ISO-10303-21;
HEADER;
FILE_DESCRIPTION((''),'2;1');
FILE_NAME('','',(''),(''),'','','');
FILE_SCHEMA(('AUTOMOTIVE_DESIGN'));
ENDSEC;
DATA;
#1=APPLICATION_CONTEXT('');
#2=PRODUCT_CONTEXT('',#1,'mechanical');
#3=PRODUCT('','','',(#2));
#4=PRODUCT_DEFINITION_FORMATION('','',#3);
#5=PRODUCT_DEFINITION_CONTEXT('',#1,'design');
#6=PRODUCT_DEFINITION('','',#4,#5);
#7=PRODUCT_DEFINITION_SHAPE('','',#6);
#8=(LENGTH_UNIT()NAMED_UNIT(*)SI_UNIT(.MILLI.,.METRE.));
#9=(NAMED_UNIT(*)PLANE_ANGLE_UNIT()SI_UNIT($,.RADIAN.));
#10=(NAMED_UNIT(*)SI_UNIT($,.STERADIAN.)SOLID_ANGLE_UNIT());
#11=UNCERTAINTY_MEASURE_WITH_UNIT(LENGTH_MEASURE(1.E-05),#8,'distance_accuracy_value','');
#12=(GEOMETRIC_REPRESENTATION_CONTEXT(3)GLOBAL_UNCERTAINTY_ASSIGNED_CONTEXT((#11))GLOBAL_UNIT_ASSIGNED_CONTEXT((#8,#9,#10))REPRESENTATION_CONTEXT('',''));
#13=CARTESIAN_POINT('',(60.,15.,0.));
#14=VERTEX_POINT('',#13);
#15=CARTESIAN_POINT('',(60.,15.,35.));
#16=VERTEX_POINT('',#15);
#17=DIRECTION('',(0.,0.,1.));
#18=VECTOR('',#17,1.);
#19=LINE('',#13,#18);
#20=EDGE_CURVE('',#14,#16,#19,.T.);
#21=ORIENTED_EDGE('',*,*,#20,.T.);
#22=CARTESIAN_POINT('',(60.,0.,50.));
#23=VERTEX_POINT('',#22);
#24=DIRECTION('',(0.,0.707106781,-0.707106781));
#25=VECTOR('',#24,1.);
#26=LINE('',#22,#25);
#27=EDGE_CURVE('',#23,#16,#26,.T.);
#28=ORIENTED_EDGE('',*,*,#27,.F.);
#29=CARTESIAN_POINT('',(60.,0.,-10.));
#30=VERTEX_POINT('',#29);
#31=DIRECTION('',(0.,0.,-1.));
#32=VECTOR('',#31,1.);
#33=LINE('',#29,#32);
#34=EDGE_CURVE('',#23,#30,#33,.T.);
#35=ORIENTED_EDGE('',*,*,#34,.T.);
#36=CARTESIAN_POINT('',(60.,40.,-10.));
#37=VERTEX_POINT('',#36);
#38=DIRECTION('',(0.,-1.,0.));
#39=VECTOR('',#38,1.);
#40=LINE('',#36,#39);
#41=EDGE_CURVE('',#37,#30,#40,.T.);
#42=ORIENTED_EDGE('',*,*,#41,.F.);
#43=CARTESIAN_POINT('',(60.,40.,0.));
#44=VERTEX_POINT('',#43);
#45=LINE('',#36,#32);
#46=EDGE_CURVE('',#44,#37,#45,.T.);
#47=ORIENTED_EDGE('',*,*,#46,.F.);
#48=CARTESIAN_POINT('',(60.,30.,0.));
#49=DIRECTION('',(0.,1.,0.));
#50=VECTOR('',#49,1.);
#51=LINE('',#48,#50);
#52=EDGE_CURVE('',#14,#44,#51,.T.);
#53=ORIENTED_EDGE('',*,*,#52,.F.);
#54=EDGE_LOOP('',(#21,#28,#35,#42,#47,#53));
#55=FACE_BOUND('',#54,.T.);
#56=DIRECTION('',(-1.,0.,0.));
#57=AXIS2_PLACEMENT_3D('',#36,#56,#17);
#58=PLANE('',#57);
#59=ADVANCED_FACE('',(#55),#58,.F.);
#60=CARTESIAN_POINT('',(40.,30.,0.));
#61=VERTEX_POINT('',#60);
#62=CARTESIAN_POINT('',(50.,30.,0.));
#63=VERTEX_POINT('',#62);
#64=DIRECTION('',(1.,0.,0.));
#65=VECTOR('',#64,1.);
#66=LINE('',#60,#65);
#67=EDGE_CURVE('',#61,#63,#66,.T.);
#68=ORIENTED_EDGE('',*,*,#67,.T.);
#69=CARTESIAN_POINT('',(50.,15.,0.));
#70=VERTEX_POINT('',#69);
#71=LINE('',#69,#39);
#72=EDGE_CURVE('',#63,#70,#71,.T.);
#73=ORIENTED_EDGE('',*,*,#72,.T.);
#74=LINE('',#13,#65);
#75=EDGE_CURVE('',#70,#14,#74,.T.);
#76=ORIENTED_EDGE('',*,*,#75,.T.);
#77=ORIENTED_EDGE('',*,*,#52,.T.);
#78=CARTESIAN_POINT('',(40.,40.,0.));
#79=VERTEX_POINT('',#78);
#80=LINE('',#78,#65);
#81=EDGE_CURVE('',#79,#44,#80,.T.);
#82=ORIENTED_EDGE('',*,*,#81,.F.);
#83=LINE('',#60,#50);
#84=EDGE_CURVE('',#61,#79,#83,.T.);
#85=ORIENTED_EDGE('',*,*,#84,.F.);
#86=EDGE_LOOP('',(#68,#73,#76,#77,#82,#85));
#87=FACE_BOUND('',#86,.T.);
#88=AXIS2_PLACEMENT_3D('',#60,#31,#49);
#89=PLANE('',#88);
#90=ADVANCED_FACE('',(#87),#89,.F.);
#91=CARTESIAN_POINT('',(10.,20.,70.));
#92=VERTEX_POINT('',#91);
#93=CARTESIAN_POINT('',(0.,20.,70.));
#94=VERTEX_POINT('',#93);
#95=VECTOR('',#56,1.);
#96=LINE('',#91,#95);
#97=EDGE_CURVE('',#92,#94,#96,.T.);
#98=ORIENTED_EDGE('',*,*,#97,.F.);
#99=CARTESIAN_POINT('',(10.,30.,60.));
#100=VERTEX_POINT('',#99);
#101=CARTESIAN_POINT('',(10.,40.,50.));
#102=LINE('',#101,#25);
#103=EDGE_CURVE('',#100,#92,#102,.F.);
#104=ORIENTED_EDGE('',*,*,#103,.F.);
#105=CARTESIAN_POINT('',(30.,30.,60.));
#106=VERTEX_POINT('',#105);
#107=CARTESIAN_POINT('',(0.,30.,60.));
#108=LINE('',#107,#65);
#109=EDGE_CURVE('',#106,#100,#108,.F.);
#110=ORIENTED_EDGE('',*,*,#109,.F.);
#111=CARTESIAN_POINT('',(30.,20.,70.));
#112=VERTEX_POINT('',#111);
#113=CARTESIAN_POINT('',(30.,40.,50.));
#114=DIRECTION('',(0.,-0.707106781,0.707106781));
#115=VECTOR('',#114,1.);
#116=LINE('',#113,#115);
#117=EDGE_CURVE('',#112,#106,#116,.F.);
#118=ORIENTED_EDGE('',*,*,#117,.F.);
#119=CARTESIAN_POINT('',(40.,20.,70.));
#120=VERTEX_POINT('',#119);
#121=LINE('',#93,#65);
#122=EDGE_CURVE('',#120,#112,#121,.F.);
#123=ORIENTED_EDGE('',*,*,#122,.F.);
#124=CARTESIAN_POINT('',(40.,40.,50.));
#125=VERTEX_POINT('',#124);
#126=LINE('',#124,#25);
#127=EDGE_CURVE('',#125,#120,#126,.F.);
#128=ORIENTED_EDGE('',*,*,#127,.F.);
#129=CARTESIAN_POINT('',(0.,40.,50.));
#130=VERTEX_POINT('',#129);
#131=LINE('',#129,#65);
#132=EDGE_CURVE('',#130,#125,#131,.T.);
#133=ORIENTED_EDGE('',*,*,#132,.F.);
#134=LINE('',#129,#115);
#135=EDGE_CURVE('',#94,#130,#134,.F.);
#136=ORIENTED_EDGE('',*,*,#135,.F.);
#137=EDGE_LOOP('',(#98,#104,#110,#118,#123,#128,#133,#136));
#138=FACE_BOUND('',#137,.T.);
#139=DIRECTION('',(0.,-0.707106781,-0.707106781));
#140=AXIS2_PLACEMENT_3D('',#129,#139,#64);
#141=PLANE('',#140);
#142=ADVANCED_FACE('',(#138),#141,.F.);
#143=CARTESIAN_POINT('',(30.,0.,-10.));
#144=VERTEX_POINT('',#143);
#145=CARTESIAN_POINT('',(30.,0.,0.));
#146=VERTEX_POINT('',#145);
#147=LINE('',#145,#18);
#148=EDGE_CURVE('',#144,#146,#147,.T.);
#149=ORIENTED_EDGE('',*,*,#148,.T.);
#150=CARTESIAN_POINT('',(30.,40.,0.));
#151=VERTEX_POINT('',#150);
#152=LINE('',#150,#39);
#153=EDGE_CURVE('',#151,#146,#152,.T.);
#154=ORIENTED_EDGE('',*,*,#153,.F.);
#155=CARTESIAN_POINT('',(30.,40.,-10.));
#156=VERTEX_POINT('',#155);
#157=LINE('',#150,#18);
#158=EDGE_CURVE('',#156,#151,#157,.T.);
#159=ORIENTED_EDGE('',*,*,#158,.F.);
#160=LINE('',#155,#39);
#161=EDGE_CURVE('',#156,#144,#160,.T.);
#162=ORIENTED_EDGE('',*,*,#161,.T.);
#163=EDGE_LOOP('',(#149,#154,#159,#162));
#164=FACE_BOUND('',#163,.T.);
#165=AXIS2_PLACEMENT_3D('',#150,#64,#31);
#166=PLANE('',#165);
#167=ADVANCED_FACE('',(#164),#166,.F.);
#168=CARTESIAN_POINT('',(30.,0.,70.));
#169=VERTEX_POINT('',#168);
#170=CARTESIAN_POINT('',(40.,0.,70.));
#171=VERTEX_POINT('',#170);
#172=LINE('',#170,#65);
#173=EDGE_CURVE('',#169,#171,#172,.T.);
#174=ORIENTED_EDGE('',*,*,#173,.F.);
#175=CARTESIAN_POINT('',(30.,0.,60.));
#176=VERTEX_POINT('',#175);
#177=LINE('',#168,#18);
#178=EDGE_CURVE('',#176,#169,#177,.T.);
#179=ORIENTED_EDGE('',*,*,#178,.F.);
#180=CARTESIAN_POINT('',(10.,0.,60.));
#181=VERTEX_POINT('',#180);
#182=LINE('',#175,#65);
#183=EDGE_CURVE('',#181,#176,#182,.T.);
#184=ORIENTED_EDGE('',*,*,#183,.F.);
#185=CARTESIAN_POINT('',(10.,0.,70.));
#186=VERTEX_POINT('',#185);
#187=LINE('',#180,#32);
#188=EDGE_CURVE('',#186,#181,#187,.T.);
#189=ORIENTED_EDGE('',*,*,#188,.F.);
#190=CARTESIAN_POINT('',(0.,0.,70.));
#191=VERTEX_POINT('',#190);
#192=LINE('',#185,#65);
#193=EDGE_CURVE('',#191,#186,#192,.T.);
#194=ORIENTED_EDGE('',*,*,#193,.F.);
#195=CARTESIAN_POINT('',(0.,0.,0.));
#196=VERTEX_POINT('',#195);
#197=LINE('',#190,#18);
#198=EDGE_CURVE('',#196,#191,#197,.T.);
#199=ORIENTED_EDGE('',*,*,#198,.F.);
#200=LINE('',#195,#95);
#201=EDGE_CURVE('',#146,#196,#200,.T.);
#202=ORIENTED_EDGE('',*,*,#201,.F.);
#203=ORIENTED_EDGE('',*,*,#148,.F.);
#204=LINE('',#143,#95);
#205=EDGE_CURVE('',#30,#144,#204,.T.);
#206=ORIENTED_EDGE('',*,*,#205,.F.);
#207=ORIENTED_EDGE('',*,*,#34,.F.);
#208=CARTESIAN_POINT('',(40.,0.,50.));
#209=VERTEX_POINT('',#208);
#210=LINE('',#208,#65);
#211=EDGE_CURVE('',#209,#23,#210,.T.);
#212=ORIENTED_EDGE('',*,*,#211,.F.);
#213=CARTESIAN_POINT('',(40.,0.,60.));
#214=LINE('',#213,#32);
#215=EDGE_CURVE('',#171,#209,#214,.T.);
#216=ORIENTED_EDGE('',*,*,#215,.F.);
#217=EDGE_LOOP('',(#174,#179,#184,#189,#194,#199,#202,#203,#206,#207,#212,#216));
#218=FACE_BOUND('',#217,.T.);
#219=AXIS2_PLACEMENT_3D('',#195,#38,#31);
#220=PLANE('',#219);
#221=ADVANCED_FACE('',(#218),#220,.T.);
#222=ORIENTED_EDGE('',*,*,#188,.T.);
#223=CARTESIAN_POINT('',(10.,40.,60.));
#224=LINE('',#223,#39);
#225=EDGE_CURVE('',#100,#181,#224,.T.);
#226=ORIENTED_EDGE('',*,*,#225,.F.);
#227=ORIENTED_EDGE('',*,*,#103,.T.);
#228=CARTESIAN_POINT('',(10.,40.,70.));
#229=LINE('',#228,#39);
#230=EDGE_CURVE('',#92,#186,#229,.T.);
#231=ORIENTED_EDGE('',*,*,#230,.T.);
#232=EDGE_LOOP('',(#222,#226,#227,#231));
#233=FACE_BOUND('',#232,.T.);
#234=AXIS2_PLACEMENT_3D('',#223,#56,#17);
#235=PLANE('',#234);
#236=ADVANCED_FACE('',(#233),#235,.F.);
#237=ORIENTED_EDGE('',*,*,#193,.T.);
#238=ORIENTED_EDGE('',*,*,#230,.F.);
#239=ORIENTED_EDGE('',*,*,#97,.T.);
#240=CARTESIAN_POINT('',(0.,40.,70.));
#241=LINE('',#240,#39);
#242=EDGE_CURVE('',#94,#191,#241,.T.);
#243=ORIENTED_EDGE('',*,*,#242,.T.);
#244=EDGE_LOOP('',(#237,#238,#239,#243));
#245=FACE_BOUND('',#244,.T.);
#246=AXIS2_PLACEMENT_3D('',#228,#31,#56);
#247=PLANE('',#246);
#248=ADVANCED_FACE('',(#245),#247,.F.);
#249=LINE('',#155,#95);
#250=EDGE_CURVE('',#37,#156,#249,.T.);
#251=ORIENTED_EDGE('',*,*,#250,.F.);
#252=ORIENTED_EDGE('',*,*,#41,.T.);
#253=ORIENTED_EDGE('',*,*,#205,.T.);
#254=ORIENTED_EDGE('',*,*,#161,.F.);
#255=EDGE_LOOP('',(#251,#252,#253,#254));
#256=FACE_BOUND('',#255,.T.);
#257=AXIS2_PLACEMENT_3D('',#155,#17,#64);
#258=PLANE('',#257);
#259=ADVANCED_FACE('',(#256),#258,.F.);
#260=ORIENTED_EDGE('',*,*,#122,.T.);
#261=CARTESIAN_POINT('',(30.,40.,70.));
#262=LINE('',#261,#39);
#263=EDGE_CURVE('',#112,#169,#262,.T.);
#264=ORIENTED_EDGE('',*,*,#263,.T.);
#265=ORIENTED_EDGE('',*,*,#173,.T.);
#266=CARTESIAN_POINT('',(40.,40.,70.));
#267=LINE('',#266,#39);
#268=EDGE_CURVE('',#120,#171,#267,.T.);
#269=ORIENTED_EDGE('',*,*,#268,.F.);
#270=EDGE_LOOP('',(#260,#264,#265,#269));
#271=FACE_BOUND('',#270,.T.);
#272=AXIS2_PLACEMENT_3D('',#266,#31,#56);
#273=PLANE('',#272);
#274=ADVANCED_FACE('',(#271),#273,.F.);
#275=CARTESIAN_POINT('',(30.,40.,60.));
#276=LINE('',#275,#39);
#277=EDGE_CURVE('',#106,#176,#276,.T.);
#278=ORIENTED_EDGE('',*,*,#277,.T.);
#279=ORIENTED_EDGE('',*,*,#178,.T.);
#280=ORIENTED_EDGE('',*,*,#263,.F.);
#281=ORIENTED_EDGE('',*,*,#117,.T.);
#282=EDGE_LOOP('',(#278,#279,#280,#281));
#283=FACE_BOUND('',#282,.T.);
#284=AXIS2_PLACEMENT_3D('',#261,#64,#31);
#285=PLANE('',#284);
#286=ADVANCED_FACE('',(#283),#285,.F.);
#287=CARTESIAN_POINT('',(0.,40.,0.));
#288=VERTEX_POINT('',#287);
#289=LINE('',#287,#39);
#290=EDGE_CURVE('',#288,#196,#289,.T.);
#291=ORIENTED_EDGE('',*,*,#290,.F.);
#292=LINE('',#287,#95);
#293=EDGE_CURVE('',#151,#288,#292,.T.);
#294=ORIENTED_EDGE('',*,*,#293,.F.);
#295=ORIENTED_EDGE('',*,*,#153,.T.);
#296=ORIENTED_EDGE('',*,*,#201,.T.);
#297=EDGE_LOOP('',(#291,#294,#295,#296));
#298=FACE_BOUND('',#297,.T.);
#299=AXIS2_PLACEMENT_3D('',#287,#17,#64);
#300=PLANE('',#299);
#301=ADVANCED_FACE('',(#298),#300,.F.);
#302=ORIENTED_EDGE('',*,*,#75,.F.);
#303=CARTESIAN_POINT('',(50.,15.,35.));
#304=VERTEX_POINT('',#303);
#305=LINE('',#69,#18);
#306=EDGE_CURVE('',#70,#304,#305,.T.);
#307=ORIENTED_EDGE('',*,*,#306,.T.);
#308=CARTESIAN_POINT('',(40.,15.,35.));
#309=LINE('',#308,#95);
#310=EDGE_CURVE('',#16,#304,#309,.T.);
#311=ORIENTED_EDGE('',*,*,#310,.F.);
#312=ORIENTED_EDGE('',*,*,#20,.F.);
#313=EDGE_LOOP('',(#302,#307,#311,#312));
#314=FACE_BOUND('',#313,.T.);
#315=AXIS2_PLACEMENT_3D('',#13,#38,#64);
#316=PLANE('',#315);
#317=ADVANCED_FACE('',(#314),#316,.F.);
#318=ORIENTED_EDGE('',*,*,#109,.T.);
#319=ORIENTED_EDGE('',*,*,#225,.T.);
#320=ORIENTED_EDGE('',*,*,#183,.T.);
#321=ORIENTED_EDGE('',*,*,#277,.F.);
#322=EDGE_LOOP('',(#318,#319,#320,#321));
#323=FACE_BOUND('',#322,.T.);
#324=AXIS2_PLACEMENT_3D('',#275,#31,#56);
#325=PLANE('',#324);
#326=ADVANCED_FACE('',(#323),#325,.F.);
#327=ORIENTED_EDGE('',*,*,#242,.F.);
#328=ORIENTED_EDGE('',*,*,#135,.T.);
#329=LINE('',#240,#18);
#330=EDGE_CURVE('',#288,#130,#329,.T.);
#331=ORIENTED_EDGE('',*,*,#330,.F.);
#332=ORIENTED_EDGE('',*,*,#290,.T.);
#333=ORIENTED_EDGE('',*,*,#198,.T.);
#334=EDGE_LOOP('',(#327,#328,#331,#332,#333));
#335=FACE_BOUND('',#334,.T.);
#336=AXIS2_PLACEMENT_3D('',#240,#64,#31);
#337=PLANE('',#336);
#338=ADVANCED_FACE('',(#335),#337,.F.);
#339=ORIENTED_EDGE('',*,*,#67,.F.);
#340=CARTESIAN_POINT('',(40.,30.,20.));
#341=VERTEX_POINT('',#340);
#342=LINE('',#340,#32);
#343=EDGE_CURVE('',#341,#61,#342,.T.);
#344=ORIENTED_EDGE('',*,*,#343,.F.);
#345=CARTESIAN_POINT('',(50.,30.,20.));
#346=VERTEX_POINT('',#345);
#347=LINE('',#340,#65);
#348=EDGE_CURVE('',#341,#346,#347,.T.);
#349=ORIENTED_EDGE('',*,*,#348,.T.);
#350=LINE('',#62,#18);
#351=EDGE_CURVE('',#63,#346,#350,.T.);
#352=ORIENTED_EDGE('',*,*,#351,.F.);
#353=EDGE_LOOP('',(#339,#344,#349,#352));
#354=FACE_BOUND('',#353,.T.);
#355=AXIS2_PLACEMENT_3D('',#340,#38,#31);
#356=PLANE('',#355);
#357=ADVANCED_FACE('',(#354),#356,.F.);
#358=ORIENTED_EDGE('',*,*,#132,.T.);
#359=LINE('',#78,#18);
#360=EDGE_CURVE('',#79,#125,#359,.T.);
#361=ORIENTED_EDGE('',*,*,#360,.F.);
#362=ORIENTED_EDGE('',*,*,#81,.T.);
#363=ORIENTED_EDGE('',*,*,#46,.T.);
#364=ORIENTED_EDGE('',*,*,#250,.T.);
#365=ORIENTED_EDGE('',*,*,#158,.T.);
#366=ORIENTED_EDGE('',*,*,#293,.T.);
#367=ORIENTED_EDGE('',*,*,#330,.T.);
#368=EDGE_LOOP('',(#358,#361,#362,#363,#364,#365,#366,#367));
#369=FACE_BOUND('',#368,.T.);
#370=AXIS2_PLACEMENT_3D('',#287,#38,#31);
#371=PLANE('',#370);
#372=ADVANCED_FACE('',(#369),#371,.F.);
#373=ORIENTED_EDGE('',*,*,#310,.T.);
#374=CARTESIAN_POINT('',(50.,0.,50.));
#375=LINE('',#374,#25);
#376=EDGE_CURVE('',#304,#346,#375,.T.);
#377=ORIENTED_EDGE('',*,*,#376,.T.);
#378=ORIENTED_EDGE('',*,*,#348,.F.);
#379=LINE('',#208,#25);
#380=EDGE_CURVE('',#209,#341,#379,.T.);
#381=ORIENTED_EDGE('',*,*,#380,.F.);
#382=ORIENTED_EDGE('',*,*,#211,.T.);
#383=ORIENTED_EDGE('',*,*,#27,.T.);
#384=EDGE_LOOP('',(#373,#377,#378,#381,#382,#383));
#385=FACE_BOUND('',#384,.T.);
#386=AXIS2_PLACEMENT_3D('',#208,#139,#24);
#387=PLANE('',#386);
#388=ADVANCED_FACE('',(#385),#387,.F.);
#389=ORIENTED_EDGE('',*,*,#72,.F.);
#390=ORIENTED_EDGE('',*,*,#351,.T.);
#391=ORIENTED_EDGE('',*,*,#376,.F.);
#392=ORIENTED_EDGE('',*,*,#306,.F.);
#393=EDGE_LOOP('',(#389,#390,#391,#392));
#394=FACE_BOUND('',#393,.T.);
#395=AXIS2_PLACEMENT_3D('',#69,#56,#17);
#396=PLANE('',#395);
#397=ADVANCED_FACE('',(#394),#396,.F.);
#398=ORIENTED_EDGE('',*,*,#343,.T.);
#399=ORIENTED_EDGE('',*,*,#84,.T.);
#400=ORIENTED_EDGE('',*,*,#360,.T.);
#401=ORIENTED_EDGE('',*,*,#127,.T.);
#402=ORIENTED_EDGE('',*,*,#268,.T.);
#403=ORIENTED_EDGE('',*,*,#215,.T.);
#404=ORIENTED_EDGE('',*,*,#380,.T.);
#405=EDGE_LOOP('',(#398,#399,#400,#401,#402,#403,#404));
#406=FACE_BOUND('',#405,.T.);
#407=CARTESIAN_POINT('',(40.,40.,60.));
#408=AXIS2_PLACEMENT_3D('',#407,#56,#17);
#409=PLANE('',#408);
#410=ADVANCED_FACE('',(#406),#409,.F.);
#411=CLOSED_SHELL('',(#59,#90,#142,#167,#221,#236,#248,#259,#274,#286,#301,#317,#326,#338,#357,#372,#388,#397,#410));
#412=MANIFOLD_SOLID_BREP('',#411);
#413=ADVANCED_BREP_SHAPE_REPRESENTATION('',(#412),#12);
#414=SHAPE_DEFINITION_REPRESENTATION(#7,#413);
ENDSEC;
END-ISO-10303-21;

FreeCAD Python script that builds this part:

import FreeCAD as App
import Part
import Sketcher


def edges_at(feature, points):
    """Names of the edges that pass closest to the given points."""
    edges = feature.Shape.Edges
    near = lambda p: min(range(len(edges)), key=lambda i: edges[i].distToShape(Part.Vertex(*p))[0])
    return sorted({f"Edge{near(p) + 1}" for p in points})

doc = App.newDocument("Part")
params = doc.addObject("Spreadsheet::Sheet", "Params")
for row, (alias, value) in enumerate([
    ("sketch1_width", "30 mm"),
    ("sketch1_width2", "10 mm"),
    ("sketch1_height", "70 mm"),
    ("pad1_length", "40 mm"),
    ("chamfer_size", "20 mm"),
    ("sketch2_width", "10 mm"),
    ("sketch2_width2", "30 mm"),
    ("sketch2_height", "50 mm"),
    ("pocket1_length", "20 mm"),
    ("sketch3_width", "10 mm"),
    ("sketch3_height", "15 mm"),
    ("pocket2_length", "70 mm"),
], start=1):
    params.set(f"A{row}", alias)
    params.set(f"B{row}", "=" + value)
    params.setAlias(f"B{row}", alias)

body = doc.addObject("PartDesign::Body", "Body")

# Sketch on XZ plane
sketch1 = body.newObject("Sketcher::SketchObject", "Sketch")
sketch1.AttachmentSupport = (doc.getObject("XZ_Plane"), [""])
sketch1.MapMode = "FlatFace"
sketch1.addGeometry([
    Part.LineSegment(App.Vector(30, 0, 0), App.Vector(0, 0, 0)),  # 0
    Part.LineSegment(App.Vector(0, 0, 0), App.Vector(0, 70, 0)),  # 1
    Part.LineSegment(App.Vector(0, 70, 0), App.Vector(10, 70, 0)),  # 2
    Part.LineSegment(App.Vector(10, 70, 0), App.Vector(10, 60, 0)),  # 3
    Part.LineSegment(App.Vector(10, 60, 0), App.Vector(30, 60, 0)),  # 4
    Part.LineSegment(App.Vector(30, 60, 0), App.Vector(30, 70, 0)),  # 5
    Part.LineSegment(App.Vector(30, 70, 0), App.Vector(40, 70, 0)),  # 6
    Part.LineSegment(App.Vector(40, 70, 0), App.Vector(40, 60, 0)),  # 7
    Part.LineSegment(App.Vector(40, 60, 0), App.Vector(60, 60, 0)),  # 8
    Part.LineSegment(App.Vector(60, 60, 0), App.Vector(60, -10, 0)),  # 9
    Part.LineSegment(App.Vector(60, -10, 0), App.Vector(30, -10, 0)),  # 10
    Part.LineSegment(App.Vector(30, -10, 0), App.Vector(30, 0, 0)),  # 11
], False)
sketch1.addConstraint([
    Sketcher.Constraint("Coincident", 0, 2, 1, 1),
    Sketcher.Constraint("Coincident", 1, 2, 2, 1),
    Sketcher.Constraint("Coincident", 2, 2, 3, 1),
    Sketcher.Constraint("Coincident", 3, 2, 4, 1),
    Sketcher.Constraint("Coincident", 4, 2, 5, 1),
    Sketcher.Constraint("Coincident", 5, 2, 6, 1),
    Sketcher.Constraint("Coincident", 6, 2, 7, 1),
    Sketcher.Constraint("Coincident", 7, 2, 8, 1),
    Sketcher.Constraint("Coincident", 8, 2, 9, 1),
    Sketcher.Constraint("Coincident", 9, 2, 10, 1),
    Sketcher.Constraint("Coincident", 10, 2, 11, 1),
    Sketcher.Constraint("Coincident", 11, 2, 0, 1),
    Sketcher.Constraint("Horizontal", 0),
    Sketcher.Constraint("Vertical", 1),
    Sketcher.Constraint("Horizontal", 2),
    Sketcher.Constraint("Vertical", 3),
    Sketcher.Constraint("Horizontal", 4),
    Sketcher.Constraint("Vertical", 5),
    Sketcher.Constraint("Horizontal", 6),
    Sketcher.Constraint("Vertical", 7),
    Sketcher.Constraint("Horizontal", 8),
    Sketcher.Constraint("Vertical", 9),
    Sketcher.Constraint("Horizontal", 10),
    Sketcher.Constraint("Vertical", 11),
    Sketcher.Constraint("Coincident", 0, 2, -1, 1),
    Sketcher.Constraint("Horizontal", 2, 2, 5, 2),
    Sketcher.Constraint("Horizontal", 4, 2, 7, 2),
    Sketcher.Constraint("Vertical", 5, 2, 10, 2),
    Sketcher.Constraint("Equal", 2, 6),
    Sketcher.Constraint("Equal", 4, 8),
    Sketcher.Constraint("Equal", 6, 3),
    Sketcher.Constraint("Equal", 1, 9),
    Sketcher.Constraint("DistanceX", 0, 2, 0, 1, 30.0),
    Sketcher.Constraint("DistanceX", 2, 1, 2, 2, 10.0),
    Sketcher.Constraint("DistanceY", 1, 1, 1, 2, 70.0),
])
sketch1.setExpression("Constraints[32]", "Params.sketch1_width")
sketch1.setExpression("Constraints[33]", "Params.sketch1_width2")
sketch1.setExpression("Constraints[34]", "Params.sketch1_height")
pad1 = body.newObject("PartDesign::Pad", "Pad")
pad1.Profile = sketch1
pad1.setExpression("Length", "Params.pad1_length")
pad1.Reversed = True
doc.recompute()

chamfer = body.newObject("PartDesign::Chamfer", "Chamfer")
chamfer.Base = (pad1, edges_at(pad1, [(5, 40, 70)]))
chamfer.setExpression("Size", "Params.chamfer_size")

# Sketch on YZ plane
sketch2 = body.newObject("Sketcher::SketchObject", "Sketch001")
sketch2.AttachmentSupport = (doc.getObject("YZ_Plane"), [""])
sketch2.MapMode = "FlatFace"
sketch2.AttachmentOffset = App.Placement(App.Vector(0, 0, 60), App.Rotation())
sketch2.addGeometry([
    Part.LineSegment(App.Vector(30, 0, 0), App.Vector(40, 0, 0)),  # 0
    Part.LineSegment(App.Vector(40, 0, 0), App.Vector(40, 50, 0)),  # 1
    Part.LineSegment(App.Vector(40, 50, 0), App.Vector(30, 60, 0)),  # 2
    Part.LineSegment(App.Vector(30, 60, 0), App.Vector(0, 60, 0)),  # 3
    Part.LineSegment(App.Vector(0, 60, 0), App.Vector(0, 50, 0)),  # 4
    Part.LineSegment(App.Vector(0, 50, 0), App.Vector(30, 20, 0)),  # 5
    Part.LineSegment(App.Vector(30, 20, 0), App.Vector(30, 0, 0)),  # 6
], False)
sketch2.addConstraint([
    Sketcher.Constraint("Coincident", 0, 2, 1, 1),
    Sketcher.Constraint("Coincident", 1, 2, 2, 1),
    Sketcher.Constraint("Coincident", 2, 2, 3, 1),
    Sketcher.Constraint("Coincident", 3, 2, 4, 1),
    Sketcher.Constraint("Coincident", 4, 2, 5, 1),
    Sketcher.Constraint("Coincident", 5, 2, 6, 1),
    Sketcher.Constraint("Coincident", 6, 2, 0, 1),
    Sketcher.Constraint("Horizontal", 0),
    Sketcher.Constraint("Vertical", 1),
    Sketcher.Constraint("Horizontal", 3),
    Sketcher.Constraint("Vertical", 4),
    Sketcher.Constraint("Vertical", 6),
    Sketcher.Constraint("PointOnObject", 0, 2, -1),
    Sketcher.Constraint("PointOnObject", 3, 2, -2),
    Sketcher.Constraint("Parallel", 2, 5),
    Sketcher.Constraint("Horizontal", 1, 2, 4, 2),
    Sketcher.Constraint("Vertical", 2, 2, 5, 2),
    Sketcher.Constraint("Equal", 0, 4),
    Sketcher.Constraint("DistanceX", 0, 1, 0, 2, 10.0),
    Sketcher.Constraint("DistanceX", 3, 2, 3, 1, 30.0),
    Sketcher.Constraint("DistanceY", 1, 1, 1, 2, 50.0),
])
sketch2.setExpression("Constraints[18]", "Params.sketch2_width")
sketch2.setExpression("Constraints[19]", "Params.sketch2_width2")
sketch2.setExpression("Constraints[20]", "Params.sketch2_height")
pocket1 = body.newObject("PartDesign::Pocket", "Pocket")
pocket1.Profile = sketch2
pocket1.setExpression("Length", "Params.pocket1_length")

# Sketch on XY plane
sketch3 = body.newObject("Sketcher::SketchObject", "Sketch002")
sketch3.AttachmentSupport = (doc.getObject("XY_Plane"), [""])
sketch3.MapMode = "FlatFace"
sketch3.AttachmentOffset = App.Placement(App.Vector(0, 0, 70), App.Rotation())
sketch3.addGeometry([
    Part.LineSegment(App.Vector(50, 30, 0), App.Vector(50, 15, 0)),
    Part.LineSegment(App.Vector(50, 15, 0), App.Vector(60, 15, 0)),
    Part.LineSegment(App.Vector(60, 15, 0), App.Vector(60, 30, 0)),
    Part.LineSegment(App.Vector(60, 30, 0), App.Vector(50, 30, 0)),
], False)
sketch3.addConstraint([
    Sketcher.Constraint("Coincident", 0, 2, 1, 1),
    Sketcher.Constraint("Coincident", 1, 2, 2, 1),
    Sketcher.Constraint("Coincident", 2, 2, 3, 1),
    Sketcher.Constraint("Coincident", 3, 2, 0, 1),
    Sketcher.Constraint("Vertical", 0),
    Sketcher.Constraint("Horizontal", 1),
    Sketcher.Constraint("Vertical", 2),
    Sketcher.Constraint("Horizontal", 3),
    Sketcher.Constraint("DistanceX", 1, 1, 1, 2, 10.0),
    Sketcher.Constraint("DistanceY", 0, 2, 0, 1, 15.0),
    Sketcher.Constraint("DistanceX", -1, 1, 0, 2, 50.0),
    Sketcher.Constraint("DistanceY", -1, 1, 0, 2, 15.0),
])
sketch3.setExpression("Constraints[8]", "Params.sketch3_width")
sketch3.setExpression("Constraints[9]", "Params.sketch3_height")
pocket2 = body.newObject("PartDesign::Pocket", "Pocket001")
pocket2.Profile = sketch3
pocket2.setExpression("Length", "Params.pocket2_length")

doc.recompute()
